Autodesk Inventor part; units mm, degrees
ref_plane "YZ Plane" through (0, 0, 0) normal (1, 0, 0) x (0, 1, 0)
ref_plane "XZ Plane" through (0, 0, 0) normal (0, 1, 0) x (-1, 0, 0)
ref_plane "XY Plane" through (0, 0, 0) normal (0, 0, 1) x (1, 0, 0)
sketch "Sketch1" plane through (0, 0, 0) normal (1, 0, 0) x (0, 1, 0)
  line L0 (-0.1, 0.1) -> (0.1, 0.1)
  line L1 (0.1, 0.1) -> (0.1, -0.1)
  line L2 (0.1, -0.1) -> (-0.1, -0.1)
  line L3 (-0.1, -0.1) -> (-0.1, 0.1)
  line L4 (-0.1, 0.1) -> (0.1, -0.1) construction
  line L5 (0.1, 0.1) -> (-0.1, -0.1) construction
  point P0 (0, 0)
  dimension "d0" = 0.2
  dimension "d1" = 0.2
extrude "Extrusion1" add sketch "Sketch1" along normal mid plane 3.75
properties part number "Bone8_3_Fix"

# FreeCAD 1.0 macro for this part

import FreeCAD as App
import Part
import Sketcher

V = App.Vector


def add_polygon(sketch, points):
    """Adds a closed chain of lines whose ends are joined by coincident constraints."""
    first, n = sketch.GeometryCount, len(points)
    for a, b in zip(points, points[1:] + points[:1]):
        sketch.addGeometry(Part.LineSegment(App.Vector(*a, 0), App.Vector(*b, 0)), False)
    for i in range(n):
        sketch.addConstraint(Sketcher.Constraint("Coincident", first + i, 2, first + (i + 1) % n, 1))

doc = App.newDocument("Part")
body = doc.addObject("PartDesign::Body", "Body")

# Sketch on YZ plane
sketch1 = body.newObject("Sketcher::SketchObject", "Sketch")
sketch1.AttachmentSupport = (doc.getObject("YZ_Plane"), [""])
sketch1.MapMode = "FlatFace"
add_polygon(sketch1, [(0.1, 0.1), (-0.1, 0.1), (-0.1, -0.1), (0.1, -0.1)])  # lines 0-3
sketch1.addConstraint([
    Sketcher.Constraint("Horizontal", 0),
    Sketcher.Constraint("Vertical", 1),
    Sketcher.Constraint("Horizontal", 2),
    Sketcher.Constraint("Vertical", 3),
    Sketcher.Constraint("Symmetric", 0, 2, 2, 2, -1, 1),
    Sketcher.Constraint("Equal", 2, 1),
    Sketcher.Constraint("DistanceX", 0, 2, 0, 1, 0.2),
])
pad1 = body.newObject("PartDesign::Pad", "Pad")
pad1.Profile = sketch1
pad1.Length = 3.75
pad1.Midplane = True

doc.recompute()
